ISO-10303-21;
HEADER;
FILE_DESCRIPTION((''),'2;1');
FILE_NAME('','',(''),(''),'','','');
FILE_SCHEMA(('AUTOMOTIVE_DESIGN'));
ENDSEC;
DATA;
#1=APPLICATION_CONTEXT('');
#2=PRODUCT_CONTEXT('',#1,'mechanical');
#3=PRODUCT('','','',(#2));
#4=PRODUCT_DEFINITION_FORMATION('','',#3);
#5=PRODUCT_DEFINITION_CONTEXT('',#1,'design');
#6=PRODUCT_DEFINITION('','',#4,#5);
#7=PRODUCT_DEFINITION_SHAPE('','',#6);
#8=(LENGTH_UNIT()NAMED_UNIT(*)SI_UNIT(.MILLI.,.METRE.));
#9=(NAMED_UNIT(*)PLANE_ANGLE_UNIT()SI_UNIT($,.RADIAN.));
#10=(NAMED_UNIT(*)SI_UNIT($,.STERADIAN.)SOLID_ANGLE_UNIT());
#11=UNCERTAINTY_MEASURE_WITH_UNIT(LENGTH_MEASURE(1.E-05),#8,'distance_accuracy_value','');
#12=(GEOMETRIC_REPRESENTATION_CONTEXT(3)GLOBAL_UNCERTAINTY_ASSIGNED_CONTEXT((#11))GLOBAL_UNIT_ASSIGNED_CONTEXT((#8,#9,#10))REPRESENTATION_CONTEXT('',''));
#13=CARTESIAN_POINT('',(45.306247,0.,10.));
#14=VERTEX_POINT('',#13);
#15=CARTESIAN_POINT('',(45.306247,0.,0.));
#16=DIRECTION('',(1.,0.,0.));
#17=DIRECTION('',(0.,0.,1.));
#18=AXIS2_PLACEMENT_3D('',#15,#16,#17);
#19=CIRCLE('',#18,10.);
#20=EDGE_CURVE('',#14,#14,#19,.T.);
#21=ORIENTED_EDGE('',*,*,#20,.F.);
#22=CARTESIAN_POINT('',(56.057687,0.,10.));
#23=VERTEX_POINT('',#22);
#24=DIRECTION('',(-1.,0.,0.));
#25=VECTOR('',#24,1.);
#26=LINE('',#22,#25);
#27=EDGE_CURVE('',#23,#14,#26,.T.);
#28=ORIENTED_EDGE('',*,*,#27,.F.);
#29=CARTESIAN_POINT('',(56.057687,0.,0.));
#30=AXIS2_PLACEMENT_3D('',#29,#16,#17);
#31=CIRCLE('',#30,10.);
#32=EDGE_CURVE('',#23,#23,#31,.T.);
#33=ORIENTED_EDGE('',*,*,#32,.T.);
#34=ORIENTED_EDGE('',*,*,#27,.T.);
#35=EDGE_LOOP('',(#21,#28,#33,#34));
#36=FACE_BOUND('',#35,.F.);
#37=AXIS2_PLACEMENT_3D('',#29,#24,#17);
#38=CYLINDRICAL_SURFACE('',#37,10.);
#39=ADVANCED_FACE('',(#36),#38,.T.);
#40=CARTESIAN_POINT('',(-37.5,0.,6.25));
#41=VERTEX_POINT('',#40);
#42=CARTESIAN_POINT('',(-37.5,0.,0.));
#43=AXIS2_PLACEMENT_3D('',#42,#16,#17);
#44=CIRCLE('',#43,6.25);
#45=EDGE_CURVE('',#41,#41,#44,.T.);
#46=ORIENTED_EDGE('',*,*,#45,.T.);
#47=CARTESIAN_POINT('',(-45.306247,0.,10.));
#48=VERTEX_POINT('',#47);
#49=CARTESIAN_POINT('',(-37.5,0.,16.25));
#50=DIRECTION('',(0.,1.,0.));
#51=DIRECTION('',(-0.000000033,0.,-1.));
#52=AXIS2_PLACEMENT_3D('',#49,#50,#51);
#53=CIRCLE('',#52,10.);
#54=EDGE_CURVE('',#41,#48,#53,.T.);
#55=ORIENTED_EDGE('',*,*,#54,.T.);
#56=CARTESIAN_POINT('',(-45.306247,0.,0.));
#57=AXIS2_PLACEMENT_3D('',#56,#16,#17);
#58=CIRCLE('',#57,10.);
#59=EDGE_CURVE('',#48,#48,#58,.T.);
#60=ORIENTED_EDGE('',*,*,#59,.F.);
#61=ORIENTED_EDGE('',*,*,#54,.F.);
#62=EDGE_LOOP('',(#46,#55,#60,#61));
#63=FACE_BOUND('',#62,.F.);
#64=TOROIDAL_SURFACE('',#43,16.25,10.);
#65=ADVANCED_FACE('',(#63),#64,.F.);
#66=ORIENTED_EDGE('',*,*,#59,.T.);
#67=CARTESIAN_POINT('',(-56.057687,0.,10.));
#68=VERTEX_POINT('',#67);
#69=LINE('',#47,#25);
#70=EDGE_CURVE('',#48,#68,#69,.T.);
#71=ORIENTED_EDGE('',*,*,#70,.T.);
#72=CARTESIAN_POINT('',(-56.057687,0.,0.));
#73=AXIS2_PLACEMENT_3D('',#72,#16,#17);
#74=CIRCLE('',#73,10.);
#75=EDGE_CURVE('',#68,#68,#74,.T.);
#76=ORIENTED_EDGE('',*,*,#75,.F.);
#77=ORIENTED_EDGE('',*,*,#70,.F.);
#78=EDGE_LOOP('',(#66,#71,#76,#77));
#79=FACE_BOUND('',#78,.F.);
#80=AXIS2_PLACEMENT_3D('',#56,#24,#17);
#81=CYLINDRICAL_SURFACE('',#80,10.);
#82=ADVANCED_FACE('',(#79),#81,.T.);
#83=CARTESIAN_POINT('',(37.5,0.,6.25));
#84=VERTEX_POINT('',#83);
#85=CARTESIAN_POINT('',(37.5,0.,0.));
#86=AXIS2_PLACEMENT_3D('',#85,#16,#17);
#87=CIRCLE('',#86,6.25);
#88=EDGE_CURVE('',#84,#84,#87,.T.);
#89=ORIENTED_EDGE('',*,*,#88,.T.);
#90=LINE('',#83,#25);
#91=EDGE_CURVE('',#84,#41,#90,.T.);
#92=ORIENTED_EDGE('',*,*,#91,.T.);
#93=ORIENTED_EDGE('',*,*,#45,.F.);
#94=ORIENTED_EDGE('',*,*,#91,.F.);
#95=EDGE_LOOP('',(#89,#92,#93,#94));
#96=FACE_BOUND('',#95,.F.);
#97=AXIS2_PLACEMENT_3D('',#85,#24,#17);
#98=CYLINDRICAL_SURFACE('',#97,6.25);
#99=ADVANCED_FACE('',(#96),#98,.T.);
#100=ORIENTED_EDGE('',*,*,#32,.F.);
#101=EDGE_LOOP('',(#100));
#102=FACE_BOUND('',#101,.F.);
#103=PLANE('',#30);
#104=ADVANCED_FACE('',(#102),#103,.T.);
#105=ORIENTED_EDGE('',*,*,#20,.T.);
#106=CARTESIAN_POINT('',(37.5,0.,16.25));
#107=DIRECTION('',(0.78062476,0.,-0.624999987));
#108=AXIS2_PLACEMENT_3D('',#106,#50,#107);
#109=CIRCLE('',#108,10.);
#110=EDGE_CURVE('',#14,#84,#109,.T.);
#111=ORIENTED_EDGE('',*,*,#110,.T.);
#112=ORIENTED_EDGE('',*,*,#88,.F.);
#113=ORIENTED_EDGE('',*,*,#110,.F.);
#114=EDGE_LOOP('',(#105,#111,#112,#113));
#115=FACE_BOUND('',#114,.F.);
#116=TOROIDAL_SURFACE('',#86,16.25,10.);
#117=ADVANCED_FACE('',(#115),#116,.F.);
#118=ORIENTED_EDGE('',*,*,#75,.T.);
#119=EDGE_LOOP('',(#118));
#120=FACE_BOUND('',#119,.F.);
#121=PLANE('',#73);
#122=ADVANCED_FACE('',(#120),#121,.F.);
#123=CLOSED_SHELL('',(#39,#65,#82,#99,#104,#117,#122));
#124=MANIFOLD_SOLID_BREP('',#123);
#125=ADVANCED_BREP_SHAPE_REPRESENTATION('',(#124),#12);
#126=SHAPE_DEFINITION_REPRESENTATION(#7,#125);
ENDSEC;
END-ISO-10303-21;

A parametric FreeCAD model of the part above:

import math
import FreeCAD as App
import Part
import Sketcher
from FreeCAD import Vector
Q = App.Units.Quantity

doc = App.newDocument("Part")
body = doc.addObject("PartDesign::Body", "Body")

# Sketch on XZ plane
sketch1 = body.newObject("Sketcher::SketchObject", "Sketch")
sketch1.AttachmentSupport = (doc.getObject("XZ_Plane"), [""])
sketch1.MapMode = "FlatFace"
sketch1.addGeometry([
    Part.LineSegment(Vector(38, 6, 0), Vector(-38, 6, 0)),  # 0
    Part.ArcOfCircle(Part.Circle(Vector(-37, 16, 0), Vector(0, 0, 1), 10), math.radians(-141), math.radians(-90)),  # 1
    Part.LineSegment(Vector(-45, 10, 0), Vector(-56, 10, 0)),  # 2
    Part.LineSegment(Vector(-56, 10, 0), Vector(-56, 0, 0)),  # 3
    Part.LineSegment(Vector(-56, 0, 0), Vector(56, 0, 0)),  # 4
    Part.LineSegment(Vector(56, 0, 0), Vector(56, 10, 0)),  # 5
    Part.LineSegment(Vector(56, 10, 0), Vector(45, 10, 0)),  # 6
    Part.ArcOfCircle(Part.Circle(Vector(37, 16, 0), Vector(0, 0, 1), 10), math.radians(-90), math.radians(-39)),  # 7
], False)
sketch1.addConstraint([
    Sketcher.Constraint("Tangent", 0, 2, 1, 2),
    Sketcher.Constraint("Coincident", 1, 1, 2, 1),
    Sketcher.Constraint("Coincident", 2, 2, 3, 1),
    Sketcher.Constraint("Coincident", 3, 2, 4, 1),
    Sketcher.Constraint("Coincident", 4, 2, 5, 1),
    Sketcher.Constraint("Coincident", 5, 2, 6, 1),
    Sketcher.Constraint("Coincident", 6, 2, 7, 2),
    Sketcher.Constraint("Tangent", 7, 1, 0, 1),
    Sketcher.Constraint("Horizontal", 0),
    Sketcher.Constraint("Horizontal", 2),
    Sketcher.Constraint("Vertical", 3),
    Sketcher.Constraint("Horizontal", 4),
    Sketcher.Constraint("Vertical", 5),
    Sketcher.Constraint("Horizontal", 6),
    Sketcher.Constraint("Equal", 1, 7),
    Sketcher.Constraint("Symmetric", 3, 2, 4, 2, -1, 1),
    Sketcher.Constraint("Symmetric", 1, 1, 6, 2, -2),
    Sketcher.Constraint("Radius", 1, Q("10 mm")),
    Sketcher.Constraint("DistanceX", 0, 2, 0, 1, Q("75 mm")),
    Sketcher.Constraint("DistanceY", 3, 2, 3, 1, Q("10 mm")),
    Sketcher.Constraint("DistanceY", -1, 1, 1, 3, Q("16.25 mm")),
    Sketcher.Constraint("DistanceX", 2, 2, 2, 1, Q("10.75144 mm")),
])
revolution = body.newObject("PartDesign::Revolution", "Revolution")
revolution.Profile = sketch1
revolution.ReferenceAxis = (sketch1, ["H_Axis"])
revolution.Angle = 360

doc.recompute()
